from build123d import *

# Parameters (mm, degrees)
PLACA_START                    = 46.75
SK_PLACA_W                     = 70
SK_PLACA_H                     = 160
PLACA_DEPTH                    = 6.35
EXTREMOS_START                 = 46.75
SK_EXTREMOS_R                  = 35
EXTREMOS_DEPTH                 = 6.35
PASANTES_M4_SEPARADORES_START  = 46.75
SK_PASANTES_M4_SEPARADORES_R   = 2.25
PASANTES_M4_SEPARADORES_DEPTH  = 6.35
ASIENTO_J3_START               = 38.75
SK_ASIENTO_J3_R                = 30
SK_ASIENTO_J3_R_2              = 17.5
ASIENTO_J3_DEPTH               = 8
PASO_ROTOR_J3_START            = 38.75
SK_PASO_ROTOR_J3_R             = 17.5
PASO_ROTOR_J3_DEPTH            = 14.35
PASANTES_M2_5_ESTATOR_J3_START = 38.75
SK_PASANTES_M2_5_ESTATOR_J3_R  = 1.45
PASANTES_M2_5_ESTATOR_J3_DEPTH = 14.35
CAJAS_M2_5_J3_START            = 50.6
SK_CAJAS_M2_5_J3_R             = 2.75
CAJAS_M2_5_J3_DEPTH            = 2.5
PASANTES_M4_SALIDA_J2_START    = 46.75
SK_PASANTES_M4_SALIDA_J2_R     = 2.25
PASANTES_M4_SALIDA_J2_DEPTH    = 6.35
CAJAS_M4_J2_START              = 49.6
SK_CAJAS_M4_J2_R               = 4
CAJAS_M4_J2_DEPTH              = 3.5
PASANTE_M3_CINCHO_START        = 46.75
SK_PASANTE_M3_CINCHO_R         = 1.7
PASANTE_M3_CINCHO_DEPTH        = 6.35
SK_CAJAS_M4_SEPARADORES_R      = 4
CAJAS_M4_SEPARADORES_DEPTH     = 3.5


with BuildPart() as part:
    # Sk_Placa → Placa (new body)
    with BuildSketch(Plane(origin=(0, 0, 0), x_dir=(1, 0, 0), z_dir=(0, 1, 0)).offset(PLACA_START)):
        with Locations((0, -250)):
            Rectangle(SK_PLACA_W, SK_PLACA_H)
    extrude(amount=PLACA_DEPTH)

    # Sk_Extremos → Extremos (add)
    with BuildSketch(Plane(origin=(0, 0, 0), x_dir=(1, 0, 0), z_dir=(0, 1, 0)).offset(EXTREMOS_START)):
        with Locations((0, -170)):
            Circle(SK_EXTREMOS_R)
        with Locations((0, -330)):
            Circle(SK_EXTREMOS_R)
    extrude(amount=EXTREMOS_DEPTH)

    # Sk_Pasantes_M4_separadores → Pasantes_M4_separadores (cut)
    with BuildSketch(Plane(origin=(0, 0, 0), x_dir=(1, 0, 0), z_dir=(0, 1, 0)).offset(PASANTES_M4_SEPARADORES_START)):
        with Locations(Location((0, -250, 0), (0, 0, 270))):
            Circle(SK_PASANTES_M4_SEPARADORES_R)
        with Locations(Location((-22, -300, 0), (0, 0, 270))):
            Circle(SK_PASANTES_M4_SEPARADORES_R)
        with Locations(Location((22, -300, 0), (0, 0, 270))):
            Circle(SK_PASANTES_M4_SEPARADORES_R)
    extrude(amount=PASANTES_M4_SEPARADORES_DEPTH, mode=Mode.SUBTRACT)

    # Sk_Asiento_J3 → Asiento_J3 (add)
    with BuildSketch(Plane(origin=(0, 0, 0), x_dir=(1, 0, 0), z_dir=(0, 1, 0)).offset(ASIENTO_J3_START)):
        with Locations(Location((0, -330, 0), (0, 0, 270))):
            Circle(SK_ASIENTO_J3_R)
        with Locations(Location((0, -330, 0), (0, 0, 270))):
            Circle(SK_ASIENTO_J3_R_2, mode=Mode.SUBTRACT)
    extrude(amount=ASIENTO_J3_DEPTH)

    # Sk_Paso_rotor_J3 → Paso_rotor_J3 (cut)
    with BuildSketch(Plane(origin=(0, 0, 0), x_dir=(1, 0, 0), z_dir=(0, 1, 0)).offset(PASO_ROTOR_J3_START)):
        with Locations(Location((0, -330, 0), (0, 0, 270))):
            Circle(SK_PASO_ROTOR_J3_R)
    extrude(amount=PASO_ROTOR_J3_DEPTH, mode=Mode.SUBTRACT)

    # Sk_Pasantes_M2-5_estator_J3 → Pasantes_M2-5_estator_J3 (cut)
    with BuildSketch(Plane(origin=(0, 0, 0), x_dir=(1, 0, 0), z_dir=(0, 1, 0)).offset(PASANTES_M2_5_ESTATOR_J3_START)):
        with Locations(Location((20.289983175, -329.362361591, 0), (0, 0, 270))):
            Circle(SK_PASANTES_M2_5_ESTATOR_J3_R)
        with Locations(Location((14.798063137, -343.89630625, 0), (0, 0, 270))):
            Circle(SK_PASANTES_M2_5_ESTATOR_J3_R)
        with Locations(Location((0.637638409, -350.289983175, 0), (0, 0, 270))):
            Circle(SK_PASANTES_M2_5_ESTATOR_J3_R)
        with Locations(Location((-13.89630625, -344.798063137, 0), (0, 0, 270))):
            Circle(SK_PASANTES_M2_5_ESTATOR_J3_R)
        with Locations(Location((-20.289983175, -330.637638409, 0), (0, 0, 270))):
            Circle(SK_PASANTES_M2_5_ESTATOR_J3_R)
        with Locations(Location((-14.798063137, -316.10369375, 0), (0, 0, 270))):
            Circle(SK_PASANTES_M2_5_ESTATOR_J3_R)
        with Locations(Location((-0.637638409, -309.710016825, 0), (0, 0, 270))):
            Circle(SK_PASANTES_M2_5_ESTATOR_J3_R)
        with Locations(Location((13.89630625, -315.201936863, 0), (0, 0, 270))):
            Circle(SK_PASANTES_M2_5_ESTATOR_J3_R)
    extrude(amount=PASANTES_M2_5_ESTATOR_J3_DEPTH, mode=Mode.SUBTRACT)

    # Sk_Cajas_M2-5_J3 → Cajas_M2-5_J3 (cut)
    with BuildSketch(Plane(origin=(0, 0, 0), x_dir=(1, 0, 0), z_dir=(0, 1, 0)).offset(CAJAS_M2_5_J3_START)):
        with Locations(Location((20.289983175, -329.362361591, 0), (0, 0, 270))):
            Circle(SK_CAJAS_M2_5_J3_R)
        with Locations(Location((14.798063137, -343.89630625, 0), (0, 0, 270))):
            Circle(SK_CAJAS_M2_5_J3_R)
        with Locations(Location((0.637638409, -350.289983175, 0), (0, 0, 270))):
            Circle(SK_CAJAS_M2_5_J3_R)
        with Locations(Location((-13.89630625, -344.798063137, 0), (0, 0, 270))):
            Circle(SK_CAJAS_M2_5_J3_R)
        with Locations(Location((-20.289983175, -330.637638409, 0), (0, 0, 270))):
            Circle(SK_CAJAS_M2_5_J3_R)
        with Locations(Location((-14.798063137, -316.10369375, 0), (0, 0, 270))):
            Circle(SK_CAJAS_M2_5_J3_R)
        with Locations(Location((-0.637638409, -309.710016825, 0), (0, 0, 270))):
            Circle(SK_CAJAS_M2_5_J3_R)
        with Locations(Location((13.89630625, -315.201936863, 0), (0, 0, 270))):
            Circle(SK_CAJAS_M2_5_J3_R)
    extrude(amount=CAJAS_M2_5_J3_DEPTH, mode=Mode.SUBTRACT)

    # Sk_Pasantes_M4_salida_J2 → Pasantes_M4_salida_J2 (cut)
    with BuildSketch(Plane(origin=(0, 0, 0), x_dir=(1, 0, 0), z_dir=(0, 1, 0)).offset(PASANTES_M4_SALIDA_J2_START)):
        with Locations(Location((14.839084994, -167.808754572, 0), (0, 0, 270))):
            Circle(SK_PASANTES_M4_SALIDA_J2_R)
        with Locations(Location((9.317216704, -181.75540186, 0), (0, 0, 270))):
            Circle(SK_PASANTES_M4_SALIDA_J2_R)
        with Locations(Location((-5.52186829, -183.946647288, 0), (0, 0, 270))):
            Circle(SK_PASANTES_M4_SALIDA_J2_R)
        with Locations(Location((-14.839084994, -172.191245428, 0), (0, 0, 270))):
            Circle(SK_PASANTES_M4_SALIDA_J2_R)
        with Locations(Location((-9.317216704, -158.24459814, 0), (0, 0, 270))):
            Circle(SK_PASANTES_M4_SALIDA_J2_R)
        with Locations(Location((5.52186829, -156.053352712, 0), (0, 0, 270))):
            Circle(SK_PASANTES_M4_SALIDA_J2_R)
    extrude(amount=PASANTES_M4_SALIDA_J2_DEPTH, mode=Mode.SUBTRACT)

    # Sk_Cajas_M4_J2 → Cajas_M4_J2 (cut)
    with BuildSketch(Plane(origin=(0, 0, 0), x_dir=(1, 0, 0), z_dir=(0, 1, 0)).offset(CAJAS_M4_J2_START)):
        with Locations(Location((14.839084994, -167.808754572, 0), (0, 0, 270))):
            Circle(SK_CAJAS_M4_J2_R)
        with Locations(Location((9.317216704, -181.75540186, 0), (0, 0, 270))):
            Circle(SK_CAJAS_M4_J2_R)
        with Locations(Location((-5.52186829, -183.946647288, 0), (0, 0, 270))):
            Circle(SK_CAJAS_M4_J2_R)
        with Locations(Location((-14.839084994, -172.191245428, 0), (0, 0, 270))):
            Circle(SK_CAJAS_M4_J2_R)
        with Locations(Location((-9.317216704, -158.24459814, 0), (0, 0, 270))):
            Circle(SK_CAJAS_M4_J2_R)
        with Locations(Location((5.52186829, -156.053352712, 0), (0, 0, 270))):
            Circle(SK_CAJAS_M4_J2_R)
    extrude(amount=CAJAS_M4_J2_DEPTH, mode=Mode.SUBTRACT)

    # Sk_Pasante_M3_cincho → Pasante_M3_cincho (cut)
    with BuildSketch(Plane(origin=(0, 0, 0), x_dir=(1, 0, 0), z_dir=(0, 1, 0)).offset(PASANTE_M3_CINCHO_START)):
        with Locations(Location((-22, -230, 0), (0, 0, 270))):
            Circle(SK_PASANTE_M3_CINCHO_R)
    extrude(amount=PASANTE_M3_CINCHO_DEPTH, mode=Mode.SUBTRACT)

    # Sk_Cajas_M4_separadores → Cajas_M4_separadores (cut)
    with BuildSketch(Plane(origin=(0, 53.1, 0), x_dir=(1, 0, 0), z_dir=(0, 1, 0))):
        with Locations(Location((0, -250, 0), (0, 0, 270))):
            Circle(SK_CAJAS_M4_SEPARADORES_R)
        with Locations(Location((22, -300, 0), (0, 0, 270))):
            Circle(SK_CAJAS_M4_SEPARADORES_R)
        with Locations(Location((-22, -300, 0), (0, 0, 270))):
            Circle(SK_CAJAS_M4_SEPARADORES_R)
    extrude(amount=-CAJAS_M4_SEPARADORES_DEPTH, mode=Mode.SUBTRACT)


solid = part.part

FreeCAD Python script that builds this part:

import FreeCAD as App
import Part
import Sketcher
from FreeCAD import Vector
Q = App.Units.Quantity

doc = App.newDocument("Part")
params = doc.addObject("Spreadsheet::Sheet", "Params")
for row, (alias, value) in enumerate([
    ("sketch1_width", "70 mm"),
    ("sketch1_height", "160 mm"),
    ("pad1_length", "6.35 mm"),
    ("sketch2_diameter", "70 mm"),
    ("pad2_length", "6.35 mm"),
    ("sketch3_diameter", "4.5 mm"),
    ("pocket1_length", "6.35 mm"),
    ("sketch4_diameter", "60 mm"),
    ("sketch4_diameter2", "35 mm"),
    ("pad3_length", "8 mm"),
    ("sketch5_diameter", "35 mm"),
    ("pocket2_length", "14.35 mm"),
    ("sketch6_diameter", "2.9 mm"),
    ("pocket3_length", "14.35 mm"),
    ("sketch7_diameter", "5.5 mm"),
    ("pocket4_length", "2.5 mm"),
    ("sketch8_diameter", "4.5 mm"),
    ("pocket5_length", "6.35 mm"),
    ("sketch9_diameter", "8 mm"),
    ("pocket6_length", "3.5 mm"),
    ("sketch10_diameter", "3.4 mm"),
    ("pocket7_length", "6.35 mm"),
    ("sketch11_diameter", "8 mm"),
    ("pocket8_length", "3.5 mm"),
], start=1):
    params.set(f"A{row}", alias)
    params.set(f"B{row}", "=" + value)
    params.setAlias(f"B{row}", alias)

body = doc.addObject("PartDesign::Body", "Body")

# Sketch on XZ plane
sketch1 = body.newObject("Sketcher::SketchObject", "Sketch")
sketch1.AttachmentSupport = (doc.getObject("XZ_Plane"), [""])
sketch1.MapMode = "FlatFace"
sketch1.AttachmentOffset = App.Placement(Vector(0, 0, -46.75), App.Rotation())
sketch1.addGeometry(Part.LineSegment(Vector(-35, 170, 0), Vector(-35, 330, 0)), False)
sketch1.addGeometry(Part.LineSegment(Vector(-35, 330, 0), Vector(35, 330, 0)), False)
sketch1.addGeometry(Part.LineSegment(Vector(35, 330, 0), Vector(35, 170, 0)), False)
sketch1.addGeometry(Part.LineSegment(Vector(35, 170, 0), Vector(-35, 170, 0)), False)
sketch1.addConstraint(Sketcher.Constraint("Coincident", 0, 2, 1, 1))
sketch1.addConstraint(Sketcher.Constraint("Coincident", 1, 2, 2, 1))
sketch1.addConstraint(Sketcher.Constraint("Coincident", 2, 2, 3, 1))
sketch1.addConstraint(Sketcher.Constraint("Coincident", 3, 2, 0, 1))
sketch1.addConstraint(Sketcher.Constraint("Vertical", 0))
sketch1.addConstraint(Sketcher.Constraint("Horizontal", 1))
sketch1.addConstraint(Sketcher.Constraint("Vertical", 2))
sketch1.addConstraint(Sketcher.Constraint("Horizontal", 3))
sketch1.addConstraint(Sketcher.Constraint("DistanceX", 1, 1, 1, 2, Q("70 mm")))
sketch1.addConstraint(Sketcher.Constraint("DistanceY", 0, 1, 0, 2, Q("160 mm")))
sketch1.addConstraint(Sketcher.Constraint("DistanceX", 0, 2, -1, 1, Q("35 mm")))
sketch1.addConstraint(Sketcher.Constraint("DistanceY", -1, 1, 0, 2, Q("330 mm")))
sketch1.setExpression("Constraints[8]", "Params.sketch1_width")
sketch1.setExpression("Constraints[9]", "Params.sketch1_height")
pad1 = body.newObject("PartDesign::Pad", "Pad")
pad1.Profile = sketch1
pad1.setExpression("Length", "Params.pad1_length")
pad1.Reversed = True

# Sketch on XZ plane
sketch2 = body.newObject("Sketcher::SketchObject", "Sketch001")
sketch2.AttachmentSupport = (doc.getObject("XZ_Plane"), [""])
sketch2.MapMode = "FlatFace"
sketch2.AttachmentOffset = App.Placement(Vector(0, 0, -46.75), App.Rotation())
sketch2.addGeometry(Part.Circle(Vector(0, 170, 0), Vector(0, 0, 1), 35), False)
sketch2.addGeometry(Part.Circle(Vector(0, 330, 0), Vector(0, 0, 1), 35), False)
sketch2.addConstraint(Sketcher.Constraint("Equal", 0, 1))
sketch2.addConstraint(Sketcher.Constraint("PointOnObject", 0, 3, -2))
sketch2.addConstraint(Sketcher.Constraint("PointOnObject", 1, 3, -2))
sketch2.addConstraint(Sketcher.Constraint("Diameter", 0, Q("70 mm")))
sketch2.addConstraint(Sketcher.Constraint("DistanceY", -1, 1, 0, 3, Q("170 mm")))
sketch2.addConstraint(Sketcher.Constraint("DistanceY", -1, 1, 1, 3, Q("330 mm")))
sketch2.setExpression("Constraints[3]", "Params.sketch2_diameter")
pad2 = body.newObject("PartDesign::Pad", "Pad001")
pad2.Profile = sketch2
pad2.setExpression("Length", "Params.pad2_length")
pad2.Reversed = True

# Sketch on XZ plane
sketch3 = body.newObject("Sketcher::SketchObject", "Sketch002")
sketch3.AttachmentSupport = (doc.getObject("XZ_Plane"), [""])
sketch3.MapMode = "FlatFace"
sketch3.AttachmentOffset = App.Placement(Vector(0, 0, -46.75), App.Rotation())
sketch3.addGeometry(Part.Circle(Vector(0, 250, 0), Vector(0, 0, 1), 2.2), False)
sketch3.addGeometry(Part.Circle(Vector(-22, 300, 0), Vector(0, 0, 1), 2.2), False)
sketch3.addGeometry(Part.Circle(Vector(22, 300, 0), Vector(0, 0, 1), 2.2), False)
sketch3.addConstraint(Sketcher.Constraint("Equal", 0, 1))
sketch3.addConstraint(Sketcher.Constraint("Equal", 1, 2))
sketch3.addConstraint(Sketcher.Constraint("Symmetric", 1, 3, 2, 3, -2))
sketch3.addConstraint(Sketcher.Constraint("PointOnObject", 0, 3, -2))
sketch3.addConstraint(Sketcher.Constraint("Diameter", 0, Q("4.5 mm")))
sketch3.addConstraint(Sketcher.Constraint("DistanceY", -1, 1, 0, 3, Q("250 mm")))
sketch3.addConstraint(Sketcher.Constraint("DistanceX", 1, 3, -1, 1, Q("22 mm")))
sketch3.addConstraint(Sketcher.Constraint("DistanceY", -1, 1, 1, 3, Q("300 mm")))
sketch3.setExpression("Constraints[4]", "Params.sketch3_diameter")
pocket1 = body.newObject("PartDesign::Pocket", "Pocket")
pocket1.Profile = sketch3
pocket1.setExpression("Length", "Params.pocket1_length")

# Sketch on XZ plane
sketch4 = body.newObject("Sketcher::SketchObject", "Sketch003")
sketch4.AttachmentSupport = (doc.getObject("XZ_Plane"), [""])
sketch4.MapMode = "FlatFace"
sketch4.AttachmentOffset = App.Placement(Vector(0, 0, -38.75), App.Rotation())
sketch4.addGeometry(Part.Circle(Vector(0, 330, 0), Vector(0, 0, 1), 30), False)
sketch4.addGeometry(Part.Circle(Vector(0, 330, 0), Vector(0, 0, 1), 18), False)
sketch4.addConstraint(Sketcher.Constraint("Coincident", 1, 3, 0, 3))
sketch4.addConstraint(Sketcher.Constraint("PointOnObject", 0, 3, -2))
sketch4.addConstraint(Sketcher.Constraint("Diameter", 0, Q("60 mm")))
sketch4.addConstraint(Sketcher.Constraint("Diameter", 1, Q("35 mm")))
sketch4.addConstraint(Sketcher.Constraint("DistanceY", -1, 1, 0, 3, Q("330 mm")))
sketch4.setExpression("Constraints[2]", "Params.sketch4_diameter")
sketch4.setExpression("Constraints[3]", "Params.sketch4_diameter2")
pad3 = body.newObject("PartDesign::Pad", "Pad002")
pad3.Profile = sketch4
pad3.setExpression("Length", "Params.pad3_length")
pad3.Reversed = True

# Sketch on XZ plane
sketch5 = body.newObject("Sketcher::SketchObject", "Sketch004")
sketch5.AttachmentSupport = (doc.getObject("XZ_Plane"), [""])
sketch5.MapMode = "FlatFace"
sketch5.AttachmentOffset = App.Placement(Vector(0, 0, -38.75), App.Rotation())
sketch5.addGeometry(Part.Circle(Vector(0, 330, 0), Vector(0, 0, 1), 18), False)
sketch5.addConstraint(Sketcher.Constraint("PointOnObject", 0, 3, -2))
sketch5.addConstraint(Sketcher.Constraint("Diameter", 0, Q("35 mm")))
sketch5.addConstraint(Sketcher.Constraint("DistanceY", -1, 1, 0, 3, Q("330 mm")))
sketch5.setExpression("Constraints[1]", "Params.sketch5_diameter")
pocket2 = body.newObject("PartDesign::Pocket", "Pocket001")
pocket2.Profile = sketch5
pocket2.setExpression("Length", "Params.pocket2_length")

# Sketch on XZ plane
sketch6 = body.newObject("Sketcher::SketchObject", "Sketch005")
sketch6.AttachmentSupport = (doc.getObject("XZ_Plane"), [""])
sketch6.MapMode = "FlatFace"
sketch6.AttachmentOffset = App.Placement(Vector(0, 0, -38.75), App.Rotation())
sketch6.addGeometry(Part.Circle(Vector(20.3, 329.4, 0), Vector(0, 0, 1), 1.4), False)
sketch6.addGeometry(Part.Circle(Vector(14.8, 343.9, 0), Vector(0, 0, 1), 1.4), False)
sketch6.addGeometry(Part.Circle(Vector(0.6, 350.3, 0), Vector(0, 0, 1), 1.4), False)
sketch6.addGeometry(Part.Circle(Vector(-13.9, 344.8, 0), Vector(0, 0, 1), 1.4), False)
sketch6.addGeometry(Part.Circle(Vector(-20.3, 330.6, 0), Vector(0, 0, 1), 1.4), False)
sketch6.addGeometry(Part.Circle(Vector(-14.8, 316.1, 0), Vector(0, 0, 1), 1.4), False)
sketch6.addGeometry(Part.Circle(Vector(-0.6, 309.7, 0), Vector(0, 0, 1), 1.4), False)
sketch6.addGeometry(Part.Circle(Vector(13.9, 315.2, 0), Vector(0, 0, 1), 1.4), False)
sketch6.addConstraint(Sketcher.Constraint("Equal", 0, 1))
sketch6.addConstraint(Sketcher.Constraint("Equal", 1, 2))
sketch6.addConstraint(Sketcher.Constraint("Equal", 2, 3))
sketch6.addConstraint(Sketcher.Constraint("Equal", 3, 4))
sketch6.addConstraint(Sketcher.Constraint("Equal", 4, 5))
sketch6.addConstraint(Sketcher.Constraint("Equal", 5, 6))
sketch6.addConstraint(Sketcher.Constraint("Equal", 6, 7))
sketch6.addConstraint(Sketcher.Constraint("Diameter", 0, Q("2.9 mm")))
sketch6.addConstraint(Sketcher.Constraint("DistanceY", 0, 3, 3, 3, Q("15.435702 mm")))
sketch6.addConstraint(Sketcher.Constraint("DistanceX", 5, 3, 2, 3, Q("15.435702 mm")))
sketch6.addConstraint(Sketcher.Constraint("DistanceX", 6, 3, 1, 3, Q("15.435702 mm")))
sketch6.addConstraint(Sketcher.Constraint("DistanceY", 7, 3, 4, 3, Q("15.435702 mm")))
sketch6.addConstraint(Sketcher.Constraint("DistanceY", -1, 1, 0, 3, Q("329.362362 mm")))
sketch6.addConstraint(Sketcher.Constraint("DistanceX", -1, 1, 2, 3, Q("0.637638 mm")))
sketch6.addConstraint(Sketcher.Constraint("DistanceY", -1, 1, 4, 3, Q("330.637638 mm")))
sketch6.addConstraint(Sketcher.Constraint("DistanceX", 6, 3, -1, 1, Q("0.637638 mm")))
sketch6.addConstraint(Sketcher.Constraint("DistanceX", 1, 3, 0, 3, Q("5.49192 mm")))
sketch6.addConstraint(Sketcher.Constraint("DistanceY", 0, 3, 2, 3, Q("20.927622 mm")))
sketch6.addConstraint(Sketcher.Constraint("DistanceX", 3, 3, 1, 3, Q("28.694369 mm")))
sketch6.addConstraint(Sketcher.Constraint("DistanceX", 4, 3, 2, 3, Q("20.927622 mm")))
sketch6.addConstraint(Sketcher.Constraint("DistanceY", 5, 3, 3, 3, Q("28.694369 mm")))
sketch6.addConstraint(Sketcher.Constraint("DistanceY", 6, 3, 4, 3, Q("20.927622 mm")))
sketch6.addConstraint(Sketcher.Constraint("DistanceY", 6, 3, 1, 3, Q("34.186289 mm")))
sketch6.addConstraint(Sketcher.Constraint("DistanceX", 5, 3, 7, 3, Q("28.694369 mm")))
sketch6.setExpression("Constraints[7]", "Params.sketch6_diameter")
pocket3 = body.newObject("PartDesign::Pocket", "Pocket002")
pocket3.Profile = sketch6
pocket3.setExpression("Length", "Params.pocket3_length")

# Sketch on XZ plane
sketch7 = body.newObject("Sketcher::SketchObject", "Sketch006")
sketch7.AttachmentSupport = (doc.getObject("XZ_Plane"), [""])
sketch7.MapMode = "FlatFace"
sketch7.AttachmentOffset = App.Placement(Vector(0, 0, -50.6), App.Rotation())
sketch7.addGeometry(Part.Circle(Vector(20.3, 329.4, 0), Vector(0, 0, 1), 2.8), False)
sketch7.addGeometry(Part.Circle(Vector(14.8, 343.9, 0), Vector(0, 0, 1), 2.8), False)
sketch7.addGeometry(Part.Circle(Vector(0.6, 350.3, 0), Vector(0, 0, 1), 2.8), False)
sketch7.addGeometry(Part.Circle(Vector(-13.9, 344.8, 0), Vector(0, 0, 1), 2.8), False)
sketch7.addGeometry(Part.Circle(Vector(-20.3, 330.6, 0), Vector(0, 0, 1), 2.8), False)
sketch7.addGeometry(Part.Circle(Vector(-14.8, 316.1, 0), Vector(0, 0, 1), 2.8), False)
sketch7.addGeometry(Part.Circle(Vector(-0.6, 309.7, 0), Vector(0, 0, 1), 2.8), False)
sketch7.addGeometry(Part.Circle(Vector(13.9, 315.2, 0), Vector(0, 0, 1), 2.8), False)
sketch7.addConstraint(Sketcher.Constraint("Equal", 0, 1))
sketch7.addConstraint(Sketcher.Constraint("Equal", 1, 2))
sketch7.addConstraint(Sketcher.Constraint("Equal", 2, 3))
sketch7.addConstraint(Sketcher.Constraint("Equal", 3, 4))
sketch7.addConstraint(Sketcher.Constraint("Equal", 4, 5))
sketch7.addConstraint(Sketcher.Constraint("Equal", 5, 6))
sketch7.addConstraint(Sketcher.Constraint("Equal", 6, 7))
sketch7.addConstraint(Sketcher.Constraint("Diameter", 0, Q("5.5 mm")))
sketch7.addConstraint(Sketcher.Constraint("DistanceY", 0, 3, 3, 3, Q("15.435702 mm")))
sketch7.addConstraint(Sketcher.Constraint("DistanceX", 5, 3, 2, 3, Q("15.435702 mm")))
sketch7.addConstraint(Sketcher.Constraint("DistanceX", 6, 3, 1, 3, Q("15.435702 mm")))
sketch7.addConstraint(Sketcher.Constraint("DistanceY", 7, 3, 4, 3, Q("15.435702 mm")))
sketch7.addConstraint(Sketcher.Constraint("DistanceY", -1, 1, 0, 3, Q("329.362362 mm")))
sketch7.addConstraint(Sketcher.Constraint("DistanceX", -1, 1, 2, 3, Q("0.637638 mm")))
sketch7.addConstraint(Sketcher.Constraint("DistanceY", -1, 1, 4, 3, Q("330.637638 mm")))
sketch7.addConstraint(Sketcher.Constraint("DistanceX", 6, 3, -1, 1, Q("0.637638 mm")))
sketch7.addConstraint(Sketcher.Constraint("DistanceX", 1, 3, 0, 3, Q("5.49192 mm")))
sketch7.addConstraint(Sketcher.Constraint("DistanceY", 0, 3, 2, 3, Q("20.927622 mm")))
sketch7.addConstraint(Sketcher.Constraint("DistanceX", 3, 3, 1, 3, Q("28.694369 mm")))
sketch7.addConstraint(Sketcher.Constraint("DistanceX", 4, 3, 2, 3, Q("20.927622 mm")))
sketch7.addConstraint(Sketcher.Constraint("DistanceY", 5, 3, 3, 3, Q("28.694369 mm")))
sketch7.addConstraint(Sketcher.Constraint("DistanceY", 6, 3, 4, 3, Q("20.927622 mm")))
sketch7.addConstraint(Sketcher.Constraint("DistanceY", 6, 3, 1, 3, Q("34.186289 mm")))
sketch7.addConstraint(Sketcher.Constraint("DistanceX", 5, 3, 7, 3, Q("28.694369 mm")))
sketch7.setExpression("Constraints[7]", "Params.sketch7_diameter")
pocket4 = body.newObject("PartDesign::Pocket", "Pocket003")
pocket4.Profile = sketch7
pocket4.setExpression("Length", "Params.pocket4_length")

# Sketch on XZ plane
sketch8 = body.newObject("Sketcher::SketchObject", "Sketch007")
sketch8.AttachmentSupport = (doc.getObject("XZ_Plane"), [""])
sketch8.MapMode = "FlatFace"
sketch8.AttachmentOffset = App.Placement(Vector(0, 0, -46.75), App.Rotation())
sketch8.addGeometry(Part.Circle(Vector(14.8, 167.8, 0), Vector(0, 0, 1), 2.2), False)
sketch8.addGeometry(Part.Circle(Vector(9.3, 181.8, 0), Vector(0, 0, 1), 2.2), False)
sketch8.addGeometry(Part.Circle(Vector(-5.5, 183.9, 0), Vector(0, 0, 1), 2.2), False)
sketch8.addGeometry(Part.Circle(Vector(-14.8, 172.2, 0), Vector(0, 0, 1), 2.2), False)
sketch8.addGeometry(Part.Circle(Vector(-9.3, 158.2, 0), Vector(0, 0, 1), 2.2), False)
sketch8.addGeometry(Part.Circle(Vector(5.5, 156.1, 0), Vector(0, 0, 1), 2.2), False)
sketch8.addConstraint(Sketcher.Constraint("Equal", 0, 1))
sketch8.addConstraint(Sketcher.Constraint("Equal", 1, 2))
sketch8.addConstraint(Sketcher.Constraint("Equal", 2, 3))
sketch8.addConstraint(Sketcher.Constraint("Equal", 3, 4))
sketch8.addConstraint(Sketcher.Constraint("Equal", 4, 5))
sketch8.addConstraint(Sketcher.Constraint("Diameter", 0, Q("4.5 mm")))
sketch8.addConstraint(Sketcher.Constraint("DistanceY", -1, 1, 1, 3, Q("181.755402 mm")))
sketch8.addConstraint(Sketcher.Constraint("DistanceY", -1, 1, 4, 3, Q("158.244598 mm")))
sketch8.addConstraint(Sketcher.Constraint("DistanceY", 3, 3, 2, 3, Q("11.755402 mm")))
sketch8.addConstraint(Sketcher.Constraint("DistanceX", 3, 3, 1, 3, Q("24.156302 mm")))
sketch8.addConstraint(Sketcher.Constraint("DistanceX", 4, 3, 0, 3, Q("24.156302 mm")))
sketch8.addConstraint(Sketcher.Constraint("DistanceY", 5, 3, 0, 3, Q("11.755402 mm")))
sketch8.addConstraint(Sketcher.Constraint("DistanceX", 2, 3, -1, 1, Q("5.521868 mm")))
sketch8.addConstraint(Sketcher.Constraint("DistanceX", -1, 1, 5, 3, Q("5.521868 mm")))
sketch8.addConstraint(Sketcher.Constraint("DistanceX", 1, 3, 0, 3, Q("5.521868 mm")))
sketch8.addConstraint(Sketcher.Constraint("DistanceY", 0, 3, 3, 3, Q("4.382491 mm")))
sketch8.addConstraint(Sketcher.Constraint("DistanceX", 4, 3, 2, 3, Q("3.795348 mm")))
sketch8.addConstraint(Sketcher.Constraint("DistanceY", 4, 3, 2, 3, Q("25.702049 mm")))
sketch8.setExpression("Constraints[5]", "Params.sketch8_diameter")
pocket5 = body.newObject("PartDesign::Pocket", "Pocket004")
pocket5.Profile = sketch8
pocket5.setExpression("Length", "Params.pocket5_length")

# Sketch on XZ plane
sketch9 = body.newObject("Sketcher::SketchObject", "Sketch008")
sketch9.AttachmentSupport = (doc.getObject("XZ_Plane"), [""])
sketch9.MapMode = "FlatFace"
sketch9.AttachmentOffset = App.Placement(Vector(0, 0, -49.6), App.Rotation())
sketch9.addGeometry(Part.Circle(Vector(14.8, 167.8, 0), Vector(0, 0, 1), 4), False)
sketch9.addGeometry(Part.Circle(Vector(9.3, 181.8, 0), Vector(0, 0, 1), 4), False)
sketch9.addGeometry(Part.Circle(Vector(-5.5, 183.9, 0), Vector(0, 0, 1), 4), False)
sketch9.addGeometry(Part.Circle(Vector(-14.8, 172.2, 0), Vector(0, 0, 1), 4), False)
sketch9.addGeometry(Part.Circle(Vector(-9.3, 158.2, 0), Vector(0, 0, 1), 4), False)
sketch9.addGeometry(Part.Circle(Vector(5.5, 156.1, 0), Vector(0, 0, 1), 4), False)
sketch9.addConstraint(Sketcher.Constraint("Equal", 0, 1))
sketch9.addConstraint(Sketcher.Constraint("Equal", 1, 2))
sketch9.addConstraint(Sketcher.Constraint("Equal", 2, 3))
sketch9.addConstraint(Sketcher.Constraint("Equal", 3, 4))
sketch9.addConstraint(Sketcher.Constraint("Equal", 4, 5))
sketch9.addConstraint(Sketcher.Constraint("Diameter", 0, Q("8 mm")))
sketch9.addConstraint(Sketcher.Constraint("DistanceY", -1, 1, 1, 3, Q("181.755402 mm")))
sketch9.addConstraint(Sketcher.Constraint("DistanceY", -1, 1, 4, 3, Q("158.244598 mm")))
sketch9.addConstraint(Sketcher.Constraint("DistanceY", 3, 3, 2, 3, Q("11.755402 mm")))
sketch9.addConstraint(Sketcher.Constraint("DistanceX", 3, 3, 1, 3, Q("24.156302 mm")))
sketch9.addConstraint(Sketcher.Constraint("DistanceX", 4, 3, 0, 3, Q("24.156302 mm")))
sketch9.addConstraint(Sketcher.Constraint("DistanceY", 5, 3, 0, 3, Q("11.755402 mm")))
sketch9.addConstraint(Sketcher.Constraint("DistanceX", 2, 3, -1, 1, Q("5.521868 mm")))
sketch9.addConstraint(Sketcher.Constraint("DistanceX", -1, 1, 5, 3, Q("5.521868 mm")))
sketch9.addConstraint(Sketcher.Constraint("DistanceX", 1, 3, 0, 3, Q("5.521868 mm")))
sketch9.addConstraint(Sketcher.Constraint("DistanceY", 0, 3, 3, 3, Q("4.382491 mm")))
sketch9.addConstraint(Sketcher.Constraint("DistanceX", 4, 3, 2, 3, Q("3.795348 mm")))
sketch9.addConstraint(Sketcher.Constraint("DistanceY", 4, 3, 2, 3, Q("25.702049 mm")))
sketch9.setExpression("Constraints[5]", "Params.sketch9_diameter")
pocket6 = body.newObject("PartDesign::Pocket", "Pocket005")
pocket6.Profile = sketch9
pocket6.setExpression("Length", "Params.pocket6_length")

# Sketch on XZ plane
sketch10 = body.newObject("Sketcher::SketchObject", "Sketch009")
sketch10.AttachmentSupport = (doc.getObject("XZ_Plane"), [""])
sketch10.MapMode = "FlatFace"
sketch10.AttachmentOffset = App.Placement(Vector(0, 0, -46.75), App.Rotation())
sketch10.addGeometry(Part.Circle(Vector(-22, 230, 0), Vector(0, 0, 1), 1.7), False)
sketch10.addConstraint(Sketcher.Constraint("Diameter", 0, Q("3.4 mm")))
sketch10.addConstraint(Sketcher.Constraint("DistanceX", 0, 3, -1, 1, Q("22 mm")))
sketch10.addConstraint(Sketcher.Constraint("DistanceY", -1, 1, 0, 3, Q("230 mm")))
sketch10.setExpression("Constraints[0]", "Params.sketch10_diameter")
pocket7 = body.newObject("PartDesign::Pocket", "Pocket006")
pocket7.Profile = sketch10
pocket7.setExpression("Length", "Params.pocket7_length")

# Sketch on XZ plane
sketch11 = body.newObject("Sketcher::SketchObject", "Sketch010")
sketch11.AttachmentSupport = (doc.getObject("XZ_Plane"), [""])
sketch11.MapMode = "FlatFace"
sketch11.AttachmentOffset = App.Placement(Vector(0, 0, -53.1), App.Rotation())
sketch11.addGeometry(Part.Circle(Vector(0, 250, 0), Vector(0, 0, 1), 4), False)
sketch11.addGeometry(Part.Circle(Vector(22, 300, 0), Vector(0, 0, 1), 4), False)
sketch11.addGeometry(Part.Circle(Vector(-22, 300, 0), Vector(0, 0, 1), 4), False)
sketch11.addConstraint(Sketcher.Constraint("Equal", 0, 1))
sketch11.addConstraint(Sketcher.Constraint("Equal", 1, 2))
sketch11.addConstraint(Sketcher.Constraint("Symmetric", 1, 3, 2, 3, -2))
sketch11.addConstraint(Sketcher.Constraint("PointOnObject", 0, 3, -2))
sketch11.addConstraint(Sketcher.Constraint("Diameter", 0, Q("8 mm")))
sketch11.addConstraint(Sketcher.Constraint("DistanceY", -1, 1, 0, 3, Q("250 mm")))
sketch11.addConstraint(Sketcher.Constraint("DistanceX", -1, 1, 1, 3, Q("22 mm")))
sketch11.addConstraint(Sketcher.Constraint("DistanceY", -1, 1, 1, 3, Q("300 mm")))
sketch11.setExpression("Constraints[4]", "Params.sketch11_diameter")
pocket8 = body.newObject("PartDesign::Pocket", "Pocket007")
pocket8.Profile = sketch11
pocket8.setExpression("Length", "Params.pocket8_length")
pocket8.Reversed = True

doc.recompute()
